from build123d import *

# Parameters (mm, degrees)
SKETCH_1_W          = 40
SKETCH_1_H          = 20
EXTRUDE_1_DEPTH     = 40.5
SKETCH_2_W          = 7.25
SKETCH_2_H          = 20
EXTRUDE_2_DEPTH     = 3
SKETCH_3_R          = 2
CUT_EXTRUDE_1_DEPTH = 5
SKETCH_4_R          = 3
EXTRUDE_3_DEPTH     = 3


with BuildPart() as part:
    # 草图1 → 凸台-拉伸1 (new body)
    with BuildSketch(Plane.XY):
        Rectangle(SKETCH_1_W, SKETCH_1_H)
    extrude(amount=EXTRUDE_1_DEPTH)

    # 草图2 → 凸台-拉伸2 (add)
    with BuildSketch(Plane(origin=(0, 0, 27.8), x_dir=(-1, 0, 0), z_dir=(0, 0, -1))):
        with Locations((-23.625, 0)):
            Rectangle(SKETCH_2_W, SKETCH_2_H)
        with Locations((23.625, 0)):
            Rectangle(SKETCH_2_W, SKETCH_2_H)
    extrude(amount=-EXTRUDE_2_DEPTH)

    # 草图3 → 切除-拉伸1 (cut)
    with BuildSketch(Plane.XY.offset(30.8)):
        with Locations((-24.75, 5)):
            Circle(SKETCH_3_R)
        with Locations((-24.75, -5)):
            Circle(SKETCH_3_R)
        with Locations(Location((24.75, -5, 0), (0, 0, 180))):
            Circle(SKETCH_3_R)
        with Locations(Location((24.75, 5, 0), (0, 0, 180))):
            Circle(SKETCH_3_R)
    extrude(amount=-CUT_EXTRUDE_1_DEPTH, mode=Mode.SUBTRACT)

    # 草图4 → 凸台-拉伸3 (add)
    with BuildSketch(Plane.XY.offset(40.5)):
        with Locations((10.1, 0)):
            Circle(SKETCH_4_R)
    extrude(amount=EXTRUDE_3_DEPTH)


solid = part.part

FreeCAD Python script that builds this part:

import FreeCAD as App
import Part
import Sketcher
Q = App.Units.Quantity


def add_polygon(sketch, points):
    """Adds a closed chain of lines whose ends are joined by coincident constraints."""
    first, n = sketch.GeometryCount, len(points)
    for a, b in zip(points, points[1:] + points[:1]):
        sketch.addGeometry(Part.LineSegment(App.Vector(*a, 0), App.Vector(*b, 0)), False)
    for i in range(n):
        sketch.addConstraint(Sketcher.Constraint("Coincident", first + i, 2, first + (i + 1) % n, 1))

doc = App.newDocument("Part")
body = doc.addObject("PartDesign::Body", "Body")

# Sketch on XY plane
sketch1 = body.newObject("Sketcher::SketchObject", "Sketch")
sketch1.AttachmentSupport = (doc.getObject("XY_Plane"), [""])
sketch1.MapMode = "FlatFace"
add_polygon(sketch1, [(-20, 10), (-20, -10), (20, -10), (20, 10)])  # lines 0-3
sketch1.addConstraint([
    Sketcher.Constraint("Vertical", 0),
    Sketcher.Constraint("Horizontal", 1),
    Sketcher.Constraint("Vertical", 2),
    Sketcher.Constraint("Horizontal", 3),
    Sketcher.Constraint("Symmetric", 0, 2, 2, 2, -1, 1),
    Sketcher.Constraint("DistanceX", 1, 1, 1, 2, Q("40 mm")),
    Sketcher.Constraint("DistanceY", 0, 2, 0, 1, Q("20 mm")),
])
pad1 = body.newObject("PartDesign::Pad", "Pad")
pad1.Profile = sketch1
pad1.Length = 40.5

# Sketch on XY plane
sketch2 = body.newObject("Sketcher::SketchObject", "Sketch001")
sketch2.AttachmentSupport = (doc.getObject("XY_Plane"), [""])
sketch2.MapMode = "FlatFace"
sketch2.AttachmentOffset = App.Placement(App.Vector(0, 0, 27.8), App.Rotation())
add_polygon(sketch2, [(27, 10), (27, -10), (20, -10), (20, 10)])  # lines 0-3
add_polygon(sketch2, [(-20, 10), (-20, -10), (-27, -10), (-27, 10)])  # lines 4-7
sketch2.addConstraint([
    Sketcher.Constraint("Vertical", 0),
    Sketcher.Constraint("Horizontal", 1),
    Sketcher.Constraint("Vertical", 2),
    Sketcher.Constraint("Horizontal", 3),
    Sketcher.Constraint("Vertical", 4),
    Sketcher.Constraint("Horizontal", 5),
    Sketcher.Constraint("Vertical", 6),
    Sketcher.Constraint("Horizontal", 7),
    Sketcher.Constraint("Symmetric", 2, 2, 4, 2, -1, 1),
    Sketcher.Constraint("Symmetric", 0, 2, 6, 2, -1, 1),
    Sketcher.Constraint("Horizontal", 1, 2, 4, 2),
    Sketcher.Constraint("DistanceY", 0, 2, 0, 1, Q("20 mm")),
    Sketcher.Constraint("DistanceX", -1, 1, 1, 2, Q("20 mm")),
    Sketcher.Constraint("DistanceX", 1, 2, 1, 1, Q("7.25 mm")),
])
pad2 = body.newObject("PartDesign::Pad", "Pad001")
pad2.Profile = sketch2
pad2.Length = 3

# Sketch on XY plane
sketch3 = body.newObject("Sketcher::SketchObject", "Sketch002")
sketch3.AttachmentSupport = (doc.getObject("XY_Plane"), [""])
sketch3.MapMode = "FlatFace"
sketch3.AttachmentOffset = App.Placement(App.Vector(0, 0, 30.8), App.Rotation())
sketch3.addGeometry([
    Part.Circle(App.Vector(-24.8, 5, 0), App.Vector(0, 0, 1), 2),
    Part.Circle(App.Vector(-24.8, -5, 0), App.Vector(0, 0, 1), 2),
    Part.Circle(App.Vector(24.8, -5, 0), App.Vector(0, 0, 1), 2),
    Part.Circle(App.Vector(24.8, 5, 0), App.Vector(0, 0, 1), 2),
], False)
sketch3.addConstraint([
    Sketcher.Constraint("Equal", 0, 1),
    Sketcher.Constraint("Equal", 1, 2),
    Sketcher.Constraint("Equal", 2, 3),
    Sketcher.Constraint("Symmetric", 0, 3, 2, 3, -1, 1),
    Sketcher.Constraint("Symmetric", 1, 3, 3, 3, -1, 1),
    Sketcher.Constraint("Symmetric", 1, 3, 2, 3, -2),
    Sketcher.Constraint("Diameter", 0, Q("4 mm")),
    Sketcher.Constraint("DistanceY", -1, 1, 0, 3, Q("5 mm")),
    Sketcher.Constraint("DistanceX", 1, 3, 2, 3, Q("49.5 mm")),
])
pocket1 = body.newObject("PartDesign::Pocket", "Pocket")
pocket1.Profile = sketch3
pocket1.Length = 5

# Sketch on XY plane
sketch4 = body.newObject("Sketcher::SketchObject", "Sketch003")
sketch4.AttachmentSupport = (doc.getObject("XY_Plane"), [""])
sketch4.MapMode = "FlatFace"
sketch4.AttachmentOffset = App.Placement(App.Vector(0, 0, 40.5), App.Rotation())
sketch4.addGeometry(Part.Circle(App.Vector(10.1, 0, 0), App.Vector(0, 0, 1), 3), False)
sketch4.addConstraint([
    Sketcher.Constraint("PointOnObject", 0, 3, -1),
    Sketcher.Constraint("Diameter", 0, Q("6 mm")),
    Sketcher.Constraint("DistanceX", -1, 1, 0, 3, Q("10.1 mm")),
])
pad3 = body.newObject("PartDesign::Pad", "Pad002")
pad3.Profile = sketch4
pad3.Length = 3

doc.recompute()
